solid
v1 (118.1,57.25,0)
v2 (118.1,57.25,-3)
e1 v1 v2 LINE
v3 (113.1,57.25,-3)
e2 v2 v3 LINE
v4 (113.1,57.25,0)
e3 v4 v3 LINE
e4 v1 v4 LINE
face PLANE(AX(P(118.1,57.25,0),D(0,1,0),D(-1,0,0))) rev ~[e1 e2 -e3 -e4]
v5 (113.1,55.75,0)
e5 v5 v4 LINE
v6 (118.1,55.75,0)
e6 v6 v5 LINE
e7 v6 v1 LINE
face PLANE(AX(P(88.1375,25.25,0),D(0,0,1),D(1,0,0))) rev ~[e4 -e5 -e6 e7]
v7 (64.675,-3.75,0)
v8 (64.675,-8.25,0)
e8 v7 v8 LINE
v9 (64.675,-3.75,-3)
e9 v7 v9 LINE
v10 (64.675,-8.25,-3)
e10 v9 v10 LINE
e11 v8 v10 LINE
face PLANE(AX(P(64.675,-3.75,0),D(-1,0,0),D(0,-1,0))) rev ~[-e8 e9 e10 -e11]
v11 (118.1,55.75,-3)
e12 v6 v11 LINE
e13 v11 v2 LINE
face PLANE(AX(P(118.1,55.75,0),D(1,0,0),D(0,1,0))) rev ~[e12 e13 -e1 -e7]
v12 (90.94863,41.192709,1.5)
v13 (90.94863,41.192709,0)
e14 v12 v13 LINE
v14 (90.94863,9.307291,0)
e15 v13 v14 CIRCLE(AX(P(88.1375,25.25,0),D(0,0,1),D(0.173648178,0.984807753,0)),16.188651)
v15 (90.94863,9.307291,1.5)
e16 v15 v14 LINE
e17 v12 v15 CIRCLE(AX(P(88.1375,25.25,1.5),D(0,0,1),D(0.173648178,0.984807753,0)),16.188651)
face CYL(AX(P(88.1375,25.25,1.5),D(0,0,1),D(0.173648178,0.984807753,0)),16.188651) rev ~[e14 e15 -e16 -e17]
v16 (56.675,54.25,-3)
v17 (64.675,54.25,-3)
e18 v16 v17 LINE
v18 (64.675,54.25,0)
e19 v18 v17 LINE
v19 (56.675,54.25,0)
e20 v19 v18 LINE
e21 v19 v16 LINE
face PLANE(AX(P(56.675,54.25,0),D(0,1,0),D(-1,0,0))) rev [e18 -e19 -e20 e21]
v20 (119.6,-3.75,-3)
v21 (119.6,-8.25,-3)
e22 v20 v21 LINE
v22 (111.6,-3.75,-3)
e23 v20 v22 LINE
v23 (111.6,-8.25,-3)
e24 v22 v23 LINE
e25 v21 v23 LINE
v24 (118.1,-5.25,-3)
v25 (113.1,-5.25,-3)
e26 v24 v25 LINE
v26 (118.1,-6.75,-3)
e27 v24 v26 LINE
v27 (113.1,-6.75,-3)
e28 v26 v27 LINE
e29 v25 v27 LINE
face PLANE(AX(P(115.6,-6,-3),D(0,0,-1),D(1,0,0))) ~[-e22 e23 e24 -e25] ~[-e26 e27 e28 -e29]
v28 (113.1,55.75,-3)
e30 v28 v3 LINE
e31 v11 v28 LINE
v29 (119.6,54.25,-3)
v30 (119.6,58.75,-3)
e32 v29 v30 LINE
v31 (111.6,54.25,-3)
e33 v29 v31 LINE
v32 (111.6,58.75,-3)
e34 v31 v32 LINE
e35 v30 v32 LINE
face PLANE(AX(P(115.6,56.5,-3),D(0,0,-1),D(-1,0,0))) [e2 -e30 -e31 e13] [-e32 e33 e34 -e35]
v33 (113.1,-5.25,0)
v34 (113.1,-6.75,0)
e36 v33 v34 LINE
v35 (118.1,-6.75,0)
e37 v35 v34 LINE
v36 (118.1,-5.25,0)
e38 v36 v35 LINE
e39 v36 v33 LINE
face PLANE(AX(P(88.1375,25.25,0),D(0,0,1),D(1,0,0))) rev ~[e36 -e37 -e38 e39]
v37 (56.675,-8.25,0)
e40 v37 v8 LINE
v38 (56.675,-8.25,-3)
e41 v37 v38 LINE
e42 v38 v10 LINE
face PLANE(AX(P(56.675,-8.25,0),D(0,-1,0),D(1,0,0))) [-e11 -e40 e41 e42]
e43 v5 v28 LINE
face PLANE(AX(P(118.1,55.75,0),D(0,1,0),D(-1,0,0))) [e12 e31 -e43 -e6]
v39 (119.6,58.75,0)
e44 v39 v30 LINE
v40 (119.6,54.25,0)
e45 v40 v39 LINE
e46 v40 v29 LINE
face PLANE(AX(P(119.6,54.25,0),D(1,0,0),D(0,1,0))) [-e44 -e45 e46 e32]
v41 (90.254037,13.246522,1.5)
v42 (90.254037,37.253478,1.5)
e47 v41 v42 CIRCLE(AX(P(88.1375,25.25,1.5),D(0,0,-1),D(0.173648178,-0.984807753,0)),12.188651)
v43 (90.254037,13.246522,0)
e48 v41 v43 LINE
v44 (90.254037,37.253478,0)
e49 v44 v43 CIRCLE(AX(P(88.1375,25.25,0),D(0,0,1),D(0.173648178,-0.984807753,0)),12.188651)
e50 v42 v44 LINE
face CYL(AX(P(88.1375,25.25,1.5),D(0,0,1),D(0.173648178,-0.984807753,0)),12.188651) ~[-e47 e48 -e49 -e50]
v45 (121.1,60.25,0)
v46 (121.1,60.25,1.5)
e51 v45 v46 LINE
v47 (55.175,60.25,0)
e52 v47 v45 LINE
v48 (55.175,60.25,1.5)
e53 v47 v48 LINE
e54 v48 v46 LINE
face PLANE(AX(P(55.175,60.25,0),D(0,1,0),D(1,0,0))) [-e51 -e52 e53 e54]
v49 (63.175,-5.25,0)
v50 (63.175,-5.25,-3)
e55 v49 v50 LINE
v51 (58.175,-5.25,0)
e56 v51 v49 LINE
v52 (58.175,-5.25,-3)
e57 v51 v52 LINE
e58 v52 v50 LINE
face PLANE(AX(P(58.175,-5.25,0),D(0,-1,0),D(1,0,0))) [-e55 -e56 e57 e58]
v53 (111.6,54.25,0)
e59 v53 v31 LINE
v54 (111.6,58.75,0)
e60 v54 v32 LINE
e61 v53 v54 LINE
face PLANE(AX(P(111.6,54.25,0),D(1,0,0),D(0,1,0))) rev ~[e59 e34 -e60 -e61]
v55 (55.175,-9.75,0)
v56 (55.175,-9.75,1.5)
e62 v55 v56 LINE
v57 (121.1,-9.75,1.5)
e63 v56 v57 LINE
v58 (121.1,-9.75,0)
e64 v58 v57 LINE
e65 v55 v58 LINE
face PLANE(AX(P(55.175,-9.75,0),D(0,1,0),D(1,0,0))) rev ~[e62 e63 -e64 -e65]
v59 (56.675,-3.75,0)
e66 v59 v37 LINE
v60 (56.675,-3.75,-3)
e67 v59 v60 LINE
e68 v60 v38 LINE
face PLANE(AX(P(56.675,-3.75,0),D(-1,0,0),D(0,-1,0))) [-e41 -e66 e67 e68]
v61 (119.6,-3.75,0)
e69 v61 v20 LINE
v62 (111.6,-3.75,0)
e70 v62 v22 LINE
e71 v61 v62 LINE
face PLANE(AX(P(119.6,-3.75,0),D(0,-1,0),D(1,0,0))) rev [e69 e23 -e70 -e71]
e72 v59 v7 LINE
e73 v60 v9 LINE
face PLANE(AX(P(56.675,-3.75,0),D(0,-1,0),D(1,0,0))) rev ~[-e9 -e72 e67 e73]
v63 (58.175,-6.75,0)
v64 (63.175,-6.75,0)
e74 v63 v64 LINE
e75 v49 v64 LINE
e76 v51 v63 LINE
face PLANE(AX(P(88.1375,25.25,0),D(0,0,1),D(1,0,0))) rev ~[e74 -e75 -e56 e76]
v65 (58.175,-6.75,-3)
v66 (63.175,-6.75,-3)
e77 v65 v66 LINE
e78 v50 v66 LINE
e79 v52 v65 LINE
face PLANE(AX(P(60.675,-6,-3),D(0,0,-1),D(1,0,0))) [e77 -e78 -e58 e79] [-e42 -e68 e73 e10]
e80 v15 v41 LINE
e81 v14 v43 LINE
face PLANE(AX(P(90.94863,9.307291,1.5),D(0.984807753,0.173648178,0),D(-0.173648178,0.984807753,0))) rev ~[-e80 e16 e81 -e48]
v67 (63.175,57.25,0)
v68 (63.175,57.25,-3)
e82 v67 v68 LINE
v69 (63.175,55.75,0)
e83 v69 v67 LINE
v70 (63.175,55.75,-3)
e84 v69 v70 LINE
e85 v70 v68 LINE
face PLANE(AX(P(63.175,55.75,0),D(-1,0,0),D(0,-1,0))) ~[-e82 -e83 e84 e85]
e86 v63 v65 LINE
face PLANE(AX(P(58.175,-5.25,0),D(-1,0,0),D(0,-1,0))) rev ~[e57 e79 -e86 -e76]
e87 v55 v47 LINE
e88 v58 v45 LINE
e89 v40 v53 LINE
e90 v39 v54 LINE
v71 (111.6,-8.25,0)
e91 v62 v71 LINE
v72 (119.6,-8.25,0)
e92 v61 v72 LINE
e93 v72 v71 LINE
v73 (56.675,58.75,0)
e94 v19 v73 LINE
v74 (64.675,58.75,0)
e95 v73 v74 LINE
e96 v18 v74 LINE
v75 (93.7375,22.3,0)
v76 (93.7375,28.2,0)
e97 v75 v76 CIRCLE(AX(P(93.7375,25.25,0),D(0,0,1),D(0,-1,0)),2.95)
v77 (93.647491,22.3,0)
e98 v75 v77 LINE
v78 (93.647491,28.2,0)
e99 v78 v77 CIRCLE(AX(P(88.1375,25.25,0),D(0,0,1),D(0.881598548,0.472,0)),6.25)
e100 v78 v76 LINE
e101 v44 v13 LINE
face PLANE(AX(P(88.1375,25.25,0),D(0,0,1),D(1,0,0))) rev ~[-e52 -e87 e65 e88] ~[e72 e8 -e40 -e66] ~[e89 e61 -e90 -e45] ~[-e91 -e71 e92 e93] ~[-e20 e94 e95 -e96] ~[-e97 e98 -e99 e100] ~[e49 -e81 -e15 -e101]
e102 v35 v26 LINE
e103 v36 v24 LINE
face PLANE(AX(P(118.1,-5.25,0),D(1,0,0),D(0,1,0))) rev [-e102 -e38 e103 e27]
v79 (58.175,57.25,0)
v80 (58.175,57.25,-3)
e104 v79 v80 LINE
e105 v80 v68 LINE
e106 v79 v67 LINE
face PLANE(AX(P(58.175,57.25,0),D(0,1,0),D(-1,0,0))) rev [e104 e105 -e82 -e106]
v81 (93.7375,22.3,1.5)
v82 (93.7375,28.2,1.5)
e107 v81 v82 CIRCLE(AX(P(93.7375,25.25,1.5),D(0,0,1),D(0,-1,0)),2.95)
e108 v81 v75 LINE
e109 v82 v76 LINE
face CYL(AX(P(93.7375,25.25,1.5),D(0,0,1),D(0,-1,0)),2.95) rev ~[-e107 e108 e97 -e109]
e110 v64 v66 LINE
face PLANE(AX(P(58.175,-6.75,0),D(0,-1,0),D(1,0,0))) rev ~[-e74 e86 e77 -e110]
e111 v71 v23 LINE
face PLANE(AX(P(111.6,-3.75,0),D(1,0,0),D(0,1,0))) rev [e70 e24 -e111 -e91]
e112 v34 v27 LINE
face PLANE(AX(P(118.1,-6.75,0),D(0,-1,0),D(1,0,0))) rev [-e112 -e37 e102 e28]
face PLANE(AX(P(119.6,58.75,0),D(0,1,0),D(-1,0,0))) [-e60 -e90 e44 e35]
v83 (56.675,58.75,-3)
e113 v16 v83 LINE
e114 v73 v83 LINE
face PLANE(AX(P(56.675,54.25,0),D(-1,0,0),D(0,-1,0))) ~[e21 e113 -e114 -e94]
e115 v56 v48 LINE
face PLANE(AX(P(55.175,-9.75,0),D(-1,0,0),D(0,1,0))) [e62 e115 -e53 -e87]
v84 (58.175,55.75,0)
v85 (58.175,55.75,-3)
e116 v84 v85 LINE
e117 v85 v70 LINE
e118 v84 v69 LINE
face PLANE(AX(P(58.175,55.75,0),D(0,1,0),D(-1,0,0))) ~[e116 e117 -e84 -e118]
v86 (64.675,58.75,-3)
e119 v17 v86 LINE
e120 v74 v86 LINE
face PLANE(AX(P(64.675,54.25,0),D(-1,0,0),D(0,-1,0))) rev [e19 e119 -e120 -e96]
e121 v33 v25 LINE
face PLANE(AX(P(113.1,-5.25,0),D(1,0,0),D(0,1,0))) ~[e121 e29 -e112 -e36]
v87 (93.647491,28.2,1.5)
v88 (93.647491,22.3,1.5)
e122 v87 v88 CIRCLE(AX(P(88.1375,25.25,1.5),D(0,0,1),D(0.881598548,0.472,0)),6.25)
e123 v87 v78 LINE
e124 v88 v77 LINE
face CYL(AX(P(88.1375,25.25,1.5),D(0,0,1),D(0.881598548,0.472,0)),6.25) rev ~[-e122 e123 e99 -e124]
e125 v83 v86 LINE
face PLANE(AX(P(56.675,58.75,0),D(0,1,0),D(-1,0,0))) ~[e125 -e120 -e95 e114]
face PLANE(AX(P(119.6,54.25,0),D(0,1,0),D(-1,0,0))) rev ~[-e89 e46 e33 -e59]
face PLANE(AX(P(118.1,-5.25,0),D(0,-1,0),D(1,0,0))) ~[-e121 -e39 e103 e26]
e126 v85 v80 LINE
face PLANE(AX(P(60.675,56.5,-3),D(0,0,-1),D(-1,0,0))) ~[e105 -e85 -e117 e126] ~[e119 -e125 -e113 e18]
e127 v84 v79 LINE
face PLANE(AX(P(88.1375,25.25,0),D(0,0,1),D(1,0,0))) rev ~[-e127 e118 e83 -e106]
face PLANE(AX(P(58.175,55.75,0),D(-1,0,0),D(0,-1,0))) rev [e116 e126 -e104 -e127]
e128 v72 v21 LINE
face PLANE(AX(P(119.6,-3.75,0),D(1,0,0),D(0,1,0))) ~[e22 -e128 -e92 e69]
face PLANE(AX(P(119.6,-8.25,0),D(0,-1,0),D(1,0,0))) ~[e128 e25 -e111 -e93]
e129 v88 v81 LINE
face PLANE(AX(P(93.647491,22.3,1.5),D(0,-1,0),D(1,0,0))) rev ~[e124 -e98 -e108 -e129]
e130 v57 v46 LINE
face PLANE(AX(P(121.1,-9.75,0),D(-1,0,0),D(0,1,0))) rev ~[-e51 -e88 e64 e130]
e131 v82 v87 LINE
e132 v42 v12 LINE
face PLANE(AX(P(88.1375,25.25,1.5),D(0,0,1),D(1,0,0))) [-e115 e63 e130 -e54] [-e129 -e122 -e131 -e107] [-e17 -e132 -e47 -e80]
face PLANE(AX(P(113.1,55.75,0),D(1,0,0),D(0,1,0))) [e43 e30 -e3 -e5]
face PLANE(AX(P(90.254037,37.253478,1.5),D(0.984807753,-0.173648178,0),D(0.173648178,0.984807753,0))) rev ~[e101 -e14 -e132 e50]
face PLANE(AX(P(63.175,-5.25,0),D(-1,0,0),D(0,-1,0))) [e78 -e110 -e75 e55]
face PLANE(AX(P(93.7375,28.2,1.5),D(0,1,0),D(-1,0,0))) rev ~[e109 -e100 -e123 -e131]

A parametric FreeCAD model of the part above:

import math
import FreeCAD as App
import Part
import Sketcher

V = App.Vector
Q = App.Units.Quantity


def add_polygon(sketch, points):
    """Adds a closed chain of lines whose ends are joined by coincident constraints."""
    first, n = sketch.GeometryCount, len(points)
    for a, b in zip(points, points[1:] + points[:1]):
        sketch.addGeometry(Part.LineSegment(App.Vector(*a, 0), App.Vector(*b, 0)), False)
    for i in range(n):
        sketch.addConstraint(Sketcher.Constraint("Coincident", first + i, 2, first + (i + 1) % n, 1))

doc = App.newDocument("Part")
body = doc.addObject("PartDesign::Body", "Body")

sketch1 = doc.addObject("Sketcher::SketchObject", "Sketch")
body.addObject(sketch1)
sketch1.AttachmentSupport = (doc.XY_Plane, [""])
sketch1.MapMode = "FlatFace"
add_polygon(sketch1, [(55, 60), (55, -10), (121, -10), (121, 60)])
sketch1.addConstraint([
    Sketcher.Constraint("Vertical", 0),
    Sketcher.Constraint("Horizontal", 1),
    Sketcher.Constraint("Vertical", 2),
    Sketcher.Constraint("Horizontal", 3),
    Sketcher.Constraint("DistanceY", 0, 2, 0, 1, Q("70 mm")),
    Sketcher.Constraint("DistanceX", -1, 1, 1, 2, Q("121.1 mm")),
    Sketcher.Constraint("DistanceX", 1, 1, 1, 2, Q("65.925 mm")),
    Sketcher.Constraint("DistanceY", 0, 2, -1, 1, Q("9.75 mm")),
])
pad1 = doc.addObject("PartDesign::Pad", "Pad")
body.addObject(pad1)
pad1.Profile = sketch1
pad1.Length = 1.5

sketch2 = doc.addObject("Sketcher::SketchObject", "Sketch001")
body.addObject(sketch2)
sketch2.AttachmentSupport = (doc.XY_Plane, [""])
sketch2.MapMode = "FlatFace"
sketch2.AttachmentOffset = App.Placement(V(0, 0, 1.5), App.Rotation())
sketch2.addGeometry([
    Part.LineSegment(V(93.65, 22.3, 0), V(93.74, 22.3, 0)),
    Part.ArcOfCircle(Part.Circle(V(93.74, 25.25, 0), V(0, 0, 1), 2.95), math.radians(-90), math.radians(90)),
    Part.LineSegment(V(93.74, 28.2, 0), V(93.65, 28.2, 0)),
    Part.ArcOfCircle(Part.Circle(V(88.14, 25.25, 0), V(0, 0, 1), 6.25), math.radians(28), math.radians(332)),
], False)
sketch2.addConstraint([
    Sketcher.Constraint("Tangent", 0, 2, 1, 1),
    Sketcher.Constraint("Tangent", 1, 2, 2, 1),
    Sketcher.Constraint("Coincident", 2, 2, 3, 1),
    Sketcher.Constraint("Coincident", 3, 2, 0, 1),
    Sketcher.Constraint("Horizontal", 0),
    Sketcher.Constraint("Horizontal", 2),
    Sketcher.Constraint("Horizontal", 1, 3, 3, 3),
    Sketcher.Constraint("Radius", 1, Q("2.95 mm")),
    Sketcher.Constraint("Radius", 3, Q("6.25 mm")),
    Sketcher.Constraint("DistanceY", -1, 1, 0, 2, Q("22.3 mm")),
    Sketcher.Constraint("DistanceX", 3, 3, 1, 3, Q("5.6 mm")),
    Sketcher.Constraint("DistanceX", -1, 1, 1, 3, Q("93.7375 mm")),
])
pocket1 = doc.addObject("PartDesign::Pocket", "Pocket")
body.addObject(pocket1)
pocket1.Profile = sketch2
pocket1.Type = "UpToFirst"

sketch3 = doc.addObject("Sketcher::SketchObject", "Sketch002")
body.addObject(sketch3)
sketch3.AttachmentSupport = (doc.XY_Plane, [""])
sketch3.MapMode = "FlatFace"
add_polygon(sketch3, [(119.6, 58.8), (119.6, 54.2), (111.6, 54.2), (111.6, 58.8)])
add_polygon(sketch3, [(113.1, 55.8), (118.1, 55.8), (118.1, 57.2), (113.1, 57.2)])
sketch3.addConstraint([
    Sketcher.Constraint("Vertical", 0),
    Sketcher.Constraint("Horizontal", 1),
    Sketcher.Constraint("Vertical", 2),
    Sketcher.Constraint("Horizontal", 3),
    Sketcher.Constraint("Horizontal", 4),
    Sketcher.Constraint("Vertical", 5),
    Sketcher.Constraint("Horizontal", 6),
    Sketcher.Constraint("Vertical", 7),
    Sketcher.Constraint("DistanceX", 1, 2, 1, 1, Q("8 mm")),
    Sketcher.Constraint("DistanceX", 4, 1, 4, 2, Q("5 mm")),
    Sketcher.Constraint("DistanceY", 0, 2, 0, 1, Q("4.5 mm")),
    Sketcher.Constraint("DistanceY", 5, 1, 5, 2, Q("1.5 mm")),
    Sketcher.Constraint("DistanceY", 4, 2, 3, 2, Q("3 mm")),
    Sketcher.Constraint("DistanceX", -1, 1, 0, 2, Q("119.6 mm")),
    Sketcher.Constraint("DistanceX", -1, 1, 4, 2, Q("118.1 mm")),
    Sketcher.Constraint("DistanceY", -1, 1, 0, 2, Q("54.25 mm")),
])
pad2 = doc.addObject("PartDesign::Pad", "Pad001")
body.addObject(pad2)
pad2.Profile = sketch3
pad2.Length = 3
pad2.Reversed = True
doc.recompute()

datumplane = doc.addObject("PartDesign::Plane", "DatumPlane")
body.addObject(datumplane)
datumplane.AttachmentSupport = (doc.YZ_Plane, [""])
datumplane.MapMode = "FlatFace"
datumplane.AttachmentOffset = App.Placement(V(0, 0, 88.1375), App.Rotation())
mirrored = doc.addObject("PartDesign::Mirrored", "Mirrored")
body.addObject(mirrored)
mirrored.Originals = [pad2]
mirrored.MirrorPlane = (datumplane, [""])
body.Tip = mirrored
doc.recompute()

datumplane2 = doc.addObject("PartDesign::Plane", "DatumPlane001")
body.addObject(datumplane2)
datumplane2.AttachmentSupport = (doc.XZ_Plane, [""])
datumplane2.MapMode = "FlatFace"
datumplane2.AttachmentOffset = App.Placement(V(0, 0, -25.25), App.Rotation())
mirrored2 = doc.addObject("PartDesign::Mirrored", "Mirrored001")
body.addObject(mirrored2)
mirrored2.Originals = [pad2]
mirrored2.MirrorPlane = (datumplane2, [""])
body.Tip = mirrored2

sketch4 = doc.addObject("Sketcher::SketchObject", "Sketch003")
body.addObject(sketch4)
sketch4.AttachmentSupport = (doc.XY_Plane, [""])
sketch4.MapMode = "FlatFace"
add_polygon(sketch4, [(56.7, -8.2), (56.7, -3.8), (64.7, -3.8), (64.7, -8.2)])
add_polygon(sketch4, [(63.2, -5.2), (58.2, -5.2), (58.2, -6.8), (63.2, -6.8)])
sketch4.addConstraint([
    Sketcher.Constraint("Vertical", 0),
    Sketcher.Constraint("Horizontal", 1),
    Sketcher.Constraint("Vertical", 2),
    Sketcher.Constraint("Horizontal", 3),
    Sketcher.Constraint("Horizontal", 4),
    Sketcher.Constraint("Vertical", 5),
    Sketcher.Constraint("Horizontal", 6),
    Sketcher.Constraint("Vertical", 7),
    Sketcher.Constraint("DistanceX", 1, 1, 1, 2, Q("8 mm")),
    Sketcher.Constraint("DistanceX", 4, 2, 4, 1, Q("5 mm")),
    Sketcher.Constraint("DistanceY", 0, 1, 0, 2, Q("4.5 mm")),
    Sketcher.Constraint("DistanceY", 5, 2, 5, 1, Q("1.5 mm")),
    Sketcher.Constraint("DistanceY", 3, 2, 4, 2, Q("3 mm")),
    Sketcher.Constraint("DistanceX", 0, 2, 4, 2, Q("1.5 mm")),
    Sketcher.Constraint("DistanceY", 0, 2, -1, 1, Q("3.75 mm")),
    Sketcher.Constraint("DistanceX", -1, 1, 0, 2, Q("56.675 mm")),
])
pad3 = doc.addObject("PartDesign::Pad", "Pad002")
body.addObject(pad3)
pad3.Profile = sketch4
pad3.Length = 3
pad3.Reversed = True

sketch5 = doc.addObject("Sketcher::SketchObject", "Sketch004")
body.addObject(sketch5)
sketch5.AttachmentSupport = (doc.XY_Plane, [""])
sketch5.MapMode = "FlatFace"
sketch5.AttachmentOffset = App.Placement(V(0, 0, 1.5), App.Rotation())
sketch5.addGeometry([
    Part.LineSegment(V(90.3, 37.3, 0), V(90.9, 41.2, 0)),
    Part.ArcOfCircle(Part.Circle(V(88.1, 25.2, 0), V(0, 0, 1), 16.2), math.radians(80), math.radians(280)),
    Part.LineSegment(V(90.9, 9.3, 0), V(90.3, 13.2, 0)),
    Part.ArcOfCircle(Part.Circle(V(88.1, 25.2, 0), V(0, 0, 1), 12.2), math.radians(80), math.radians(280)),
], False)
sketch5.addConstraint([
    Sketcher.Constraint("Coincident", 0, 2, 1, 1),
    Sketcher.Constraint("Coincident", 1, 2, 2, 1),
    Sketcher.Constraint("Coincident", 2, 2, 3, 2),
    Sketcher.Constraint("Coincident", 3, 1, 0, 1),
    Sketcher.Constraint("Coincident", 3, 3, 1, 3),
    Sketcher.Constraint("Vertical", 0, 2, 1, 2),
    Sketcher.Constraint("Vertical", 2, 2, 3, 1),
    Sketcher.Constraint("Angle", 0, Q("80 deg")),
    Sketcher.Constraint("Distance", 0, Q("4 mm")),
    Sketcher.Constraint("DistanceY", -1, 1, 1, 3, Q("25.25 mm")),
    Sketcher.Constraint("Radius", 1, Q("16.188651 mm")),
    Sketcher.Constraint("DistanceX", -1, 1, 1, 3, Q("88.1375 mm")),
    Sketcher.Constraint("DistanceX", -1, 1, 0, 2, Q("90.94863 mm")),
])
pocket2 = doc.addObject("PartDesign::Pocket", "Pocket001")
body.addObject(pocket2)
pocket2.Profile = sketch5
pocket2.Type = "ThroughAll"

doc.recompute()
